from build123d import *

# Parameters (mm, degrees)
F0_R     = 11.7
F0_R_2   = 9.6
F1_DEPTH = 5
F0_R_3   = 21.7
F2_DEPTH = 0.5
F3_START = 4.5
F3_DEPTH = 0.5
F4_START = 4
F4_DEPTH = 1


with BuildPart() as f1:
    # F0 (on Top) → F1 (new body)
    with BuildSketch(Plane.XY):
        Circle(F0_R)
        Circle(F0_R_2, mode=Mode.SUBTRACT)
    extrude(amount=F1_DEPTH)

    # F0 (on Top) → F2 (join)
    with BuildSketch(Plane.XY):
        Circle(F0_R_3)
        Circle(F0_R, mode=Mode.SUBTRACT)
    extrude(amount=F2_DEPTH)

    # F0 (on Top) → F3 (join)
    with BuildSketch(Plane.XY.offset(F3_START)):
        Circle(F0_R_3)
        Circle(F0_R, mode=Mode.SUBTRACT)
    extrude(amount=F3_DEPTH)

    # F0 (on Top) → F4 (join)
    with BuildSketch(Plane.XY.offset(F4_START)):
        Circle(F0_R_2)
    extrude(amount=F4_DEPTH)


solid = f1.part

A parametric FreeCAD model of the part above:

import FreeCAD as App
import Part
import Sketcher

doc = App.newDocument("Part")
body = doc.addObject("PartDesign::Body", "Body")

# Sketch on XY plane
sketch1 = doc.addObject("Sketcher::SketchObject", "Sketch")
body.addObject(sketch1)
sketch1.AttachmentSupport = (doc.XY_Plane, [""])
sketch1.MapMode = "FlatFace"
sketch1.addGeometry([
    Part.Circle(App.Vector(0, 0, 0), App.Vector(0, 0, 1), 12),
    Part.Circle(App.Vector(0, 0, 0), App.Vector(0, 0, 1), 10),
], False)
sketch1.addConstraint([
    Sketcher.Constraint("Coincident", 0, 3, -1, 1),
    Sketcher.Constraint("Coincident", 1, 3, -1, 1),
    Sketcher.Constraint("Diameter", 0, 23.4),
    Sketcher.Constraint("Diameter", 1, 19.2),
])
pad1 = doc.addObject("PartDesign::Pad", "Pad")
body.addObject(pad1)
pad1.Profile = sketch1
pad1.Length = 5

# Sketch on XY plane
sketch2 = doc.addObject("Sketcher::SketchObject", "Sketch001")
body.addObject(sketch2)
sketch2.AttachmentSupport = (doc.XY_Plane, [""])
sketch2.MapMode = "FlatFace"
sketch2.addGeometry([
    Part.Circle(App.Vector(0, 0, 0), App.Vector(0, 0, 1), 22),
    Part.Circle(App.Vector(0, 0, 0), App.Vector(0, 0, 1), 12),
], False)
sketch2.addConstraint([
    Sketcher.Constraint("Coincident", 0, 3, -1, 1),
    Sketcher.Constraint("Coincident", 1, 3, -1, 1),
    Sketcher.Constraint("Diameter", 0, 43.4),
    Sketcher.Constraint("Diameter", 1, 23.4),
])
pad2 = doc.addObject("PartDesign::Pad", "Pad001")
body.addObject(pad2)
pad2.Profile = sketch2
pad2.Length = 0.5

# Sketch on XY plane
sketch3 = doc.addObject("Sketcher::SketchObject", "Sketch002")
body.addObject(sketch3)
sketch3.AttachmentSupport = (doc.XY_Plane, [""])
sketch3.MapMode = "FlatFace"
sketch3.AttachmentOffset = App.Placement(App.Vector(0, 0, 4.5), App.Rotation())
sketch3.addGeometry([
    Part.Circle(App.Vector(0, 0, 0), App.Vector(0, 0, 1), 22),
    Part.Circle(App.Vector(0, 0, 0), App.Vector(0, 0, 1), 12),
], False)
sketch3.addConstraint([
    Sketcher.Constraint("Coincident", 0, 3, -1, 1),
    Sketcher.Constraint("Coincident", 1, 3, -1, 1),
    Sketcher.Constraint("Diameter", 0, 43.4),
    Sketcher.Constraint("Diameter", 1, 23.4),
])
pad3 = doc.addObject("PartDesign::Pad", "Pad002")
body.addObject(pad3)
pad3.Profile = sketch3
pad3.Length = 0.5

# Sketch on XY plane
sketch4 = doc.addObject("Sketcher::SketchObject", "Sketch003")
body.addObject(sketch4)
sketch4.AttachmentSupport = (doc.XY_Plane, [""])
sketch4.MapMode = "FlatFace"
sketch4.AttachmentOffset = App.Placement(App.Vector(0, 0, 4), App.Rotation())
sketch4.addGeometry(Part.Circle(App.Vector(0, 0, 0), App.Vector(0, 0, 1), 10), False)
sketch4.addConstraint([
    Sketcher.Constraint("Coincident", 0, 3, -1, 1),
    Sketcher.Constraint("Diameter", 0, 19.2),
])
pad4 = doc.addObject("PartDesign::Pad", "Pad003")
body.addObject(pad4)
pad4.Profile = sketch4
pad4.Length = 1

doc.recompute()
